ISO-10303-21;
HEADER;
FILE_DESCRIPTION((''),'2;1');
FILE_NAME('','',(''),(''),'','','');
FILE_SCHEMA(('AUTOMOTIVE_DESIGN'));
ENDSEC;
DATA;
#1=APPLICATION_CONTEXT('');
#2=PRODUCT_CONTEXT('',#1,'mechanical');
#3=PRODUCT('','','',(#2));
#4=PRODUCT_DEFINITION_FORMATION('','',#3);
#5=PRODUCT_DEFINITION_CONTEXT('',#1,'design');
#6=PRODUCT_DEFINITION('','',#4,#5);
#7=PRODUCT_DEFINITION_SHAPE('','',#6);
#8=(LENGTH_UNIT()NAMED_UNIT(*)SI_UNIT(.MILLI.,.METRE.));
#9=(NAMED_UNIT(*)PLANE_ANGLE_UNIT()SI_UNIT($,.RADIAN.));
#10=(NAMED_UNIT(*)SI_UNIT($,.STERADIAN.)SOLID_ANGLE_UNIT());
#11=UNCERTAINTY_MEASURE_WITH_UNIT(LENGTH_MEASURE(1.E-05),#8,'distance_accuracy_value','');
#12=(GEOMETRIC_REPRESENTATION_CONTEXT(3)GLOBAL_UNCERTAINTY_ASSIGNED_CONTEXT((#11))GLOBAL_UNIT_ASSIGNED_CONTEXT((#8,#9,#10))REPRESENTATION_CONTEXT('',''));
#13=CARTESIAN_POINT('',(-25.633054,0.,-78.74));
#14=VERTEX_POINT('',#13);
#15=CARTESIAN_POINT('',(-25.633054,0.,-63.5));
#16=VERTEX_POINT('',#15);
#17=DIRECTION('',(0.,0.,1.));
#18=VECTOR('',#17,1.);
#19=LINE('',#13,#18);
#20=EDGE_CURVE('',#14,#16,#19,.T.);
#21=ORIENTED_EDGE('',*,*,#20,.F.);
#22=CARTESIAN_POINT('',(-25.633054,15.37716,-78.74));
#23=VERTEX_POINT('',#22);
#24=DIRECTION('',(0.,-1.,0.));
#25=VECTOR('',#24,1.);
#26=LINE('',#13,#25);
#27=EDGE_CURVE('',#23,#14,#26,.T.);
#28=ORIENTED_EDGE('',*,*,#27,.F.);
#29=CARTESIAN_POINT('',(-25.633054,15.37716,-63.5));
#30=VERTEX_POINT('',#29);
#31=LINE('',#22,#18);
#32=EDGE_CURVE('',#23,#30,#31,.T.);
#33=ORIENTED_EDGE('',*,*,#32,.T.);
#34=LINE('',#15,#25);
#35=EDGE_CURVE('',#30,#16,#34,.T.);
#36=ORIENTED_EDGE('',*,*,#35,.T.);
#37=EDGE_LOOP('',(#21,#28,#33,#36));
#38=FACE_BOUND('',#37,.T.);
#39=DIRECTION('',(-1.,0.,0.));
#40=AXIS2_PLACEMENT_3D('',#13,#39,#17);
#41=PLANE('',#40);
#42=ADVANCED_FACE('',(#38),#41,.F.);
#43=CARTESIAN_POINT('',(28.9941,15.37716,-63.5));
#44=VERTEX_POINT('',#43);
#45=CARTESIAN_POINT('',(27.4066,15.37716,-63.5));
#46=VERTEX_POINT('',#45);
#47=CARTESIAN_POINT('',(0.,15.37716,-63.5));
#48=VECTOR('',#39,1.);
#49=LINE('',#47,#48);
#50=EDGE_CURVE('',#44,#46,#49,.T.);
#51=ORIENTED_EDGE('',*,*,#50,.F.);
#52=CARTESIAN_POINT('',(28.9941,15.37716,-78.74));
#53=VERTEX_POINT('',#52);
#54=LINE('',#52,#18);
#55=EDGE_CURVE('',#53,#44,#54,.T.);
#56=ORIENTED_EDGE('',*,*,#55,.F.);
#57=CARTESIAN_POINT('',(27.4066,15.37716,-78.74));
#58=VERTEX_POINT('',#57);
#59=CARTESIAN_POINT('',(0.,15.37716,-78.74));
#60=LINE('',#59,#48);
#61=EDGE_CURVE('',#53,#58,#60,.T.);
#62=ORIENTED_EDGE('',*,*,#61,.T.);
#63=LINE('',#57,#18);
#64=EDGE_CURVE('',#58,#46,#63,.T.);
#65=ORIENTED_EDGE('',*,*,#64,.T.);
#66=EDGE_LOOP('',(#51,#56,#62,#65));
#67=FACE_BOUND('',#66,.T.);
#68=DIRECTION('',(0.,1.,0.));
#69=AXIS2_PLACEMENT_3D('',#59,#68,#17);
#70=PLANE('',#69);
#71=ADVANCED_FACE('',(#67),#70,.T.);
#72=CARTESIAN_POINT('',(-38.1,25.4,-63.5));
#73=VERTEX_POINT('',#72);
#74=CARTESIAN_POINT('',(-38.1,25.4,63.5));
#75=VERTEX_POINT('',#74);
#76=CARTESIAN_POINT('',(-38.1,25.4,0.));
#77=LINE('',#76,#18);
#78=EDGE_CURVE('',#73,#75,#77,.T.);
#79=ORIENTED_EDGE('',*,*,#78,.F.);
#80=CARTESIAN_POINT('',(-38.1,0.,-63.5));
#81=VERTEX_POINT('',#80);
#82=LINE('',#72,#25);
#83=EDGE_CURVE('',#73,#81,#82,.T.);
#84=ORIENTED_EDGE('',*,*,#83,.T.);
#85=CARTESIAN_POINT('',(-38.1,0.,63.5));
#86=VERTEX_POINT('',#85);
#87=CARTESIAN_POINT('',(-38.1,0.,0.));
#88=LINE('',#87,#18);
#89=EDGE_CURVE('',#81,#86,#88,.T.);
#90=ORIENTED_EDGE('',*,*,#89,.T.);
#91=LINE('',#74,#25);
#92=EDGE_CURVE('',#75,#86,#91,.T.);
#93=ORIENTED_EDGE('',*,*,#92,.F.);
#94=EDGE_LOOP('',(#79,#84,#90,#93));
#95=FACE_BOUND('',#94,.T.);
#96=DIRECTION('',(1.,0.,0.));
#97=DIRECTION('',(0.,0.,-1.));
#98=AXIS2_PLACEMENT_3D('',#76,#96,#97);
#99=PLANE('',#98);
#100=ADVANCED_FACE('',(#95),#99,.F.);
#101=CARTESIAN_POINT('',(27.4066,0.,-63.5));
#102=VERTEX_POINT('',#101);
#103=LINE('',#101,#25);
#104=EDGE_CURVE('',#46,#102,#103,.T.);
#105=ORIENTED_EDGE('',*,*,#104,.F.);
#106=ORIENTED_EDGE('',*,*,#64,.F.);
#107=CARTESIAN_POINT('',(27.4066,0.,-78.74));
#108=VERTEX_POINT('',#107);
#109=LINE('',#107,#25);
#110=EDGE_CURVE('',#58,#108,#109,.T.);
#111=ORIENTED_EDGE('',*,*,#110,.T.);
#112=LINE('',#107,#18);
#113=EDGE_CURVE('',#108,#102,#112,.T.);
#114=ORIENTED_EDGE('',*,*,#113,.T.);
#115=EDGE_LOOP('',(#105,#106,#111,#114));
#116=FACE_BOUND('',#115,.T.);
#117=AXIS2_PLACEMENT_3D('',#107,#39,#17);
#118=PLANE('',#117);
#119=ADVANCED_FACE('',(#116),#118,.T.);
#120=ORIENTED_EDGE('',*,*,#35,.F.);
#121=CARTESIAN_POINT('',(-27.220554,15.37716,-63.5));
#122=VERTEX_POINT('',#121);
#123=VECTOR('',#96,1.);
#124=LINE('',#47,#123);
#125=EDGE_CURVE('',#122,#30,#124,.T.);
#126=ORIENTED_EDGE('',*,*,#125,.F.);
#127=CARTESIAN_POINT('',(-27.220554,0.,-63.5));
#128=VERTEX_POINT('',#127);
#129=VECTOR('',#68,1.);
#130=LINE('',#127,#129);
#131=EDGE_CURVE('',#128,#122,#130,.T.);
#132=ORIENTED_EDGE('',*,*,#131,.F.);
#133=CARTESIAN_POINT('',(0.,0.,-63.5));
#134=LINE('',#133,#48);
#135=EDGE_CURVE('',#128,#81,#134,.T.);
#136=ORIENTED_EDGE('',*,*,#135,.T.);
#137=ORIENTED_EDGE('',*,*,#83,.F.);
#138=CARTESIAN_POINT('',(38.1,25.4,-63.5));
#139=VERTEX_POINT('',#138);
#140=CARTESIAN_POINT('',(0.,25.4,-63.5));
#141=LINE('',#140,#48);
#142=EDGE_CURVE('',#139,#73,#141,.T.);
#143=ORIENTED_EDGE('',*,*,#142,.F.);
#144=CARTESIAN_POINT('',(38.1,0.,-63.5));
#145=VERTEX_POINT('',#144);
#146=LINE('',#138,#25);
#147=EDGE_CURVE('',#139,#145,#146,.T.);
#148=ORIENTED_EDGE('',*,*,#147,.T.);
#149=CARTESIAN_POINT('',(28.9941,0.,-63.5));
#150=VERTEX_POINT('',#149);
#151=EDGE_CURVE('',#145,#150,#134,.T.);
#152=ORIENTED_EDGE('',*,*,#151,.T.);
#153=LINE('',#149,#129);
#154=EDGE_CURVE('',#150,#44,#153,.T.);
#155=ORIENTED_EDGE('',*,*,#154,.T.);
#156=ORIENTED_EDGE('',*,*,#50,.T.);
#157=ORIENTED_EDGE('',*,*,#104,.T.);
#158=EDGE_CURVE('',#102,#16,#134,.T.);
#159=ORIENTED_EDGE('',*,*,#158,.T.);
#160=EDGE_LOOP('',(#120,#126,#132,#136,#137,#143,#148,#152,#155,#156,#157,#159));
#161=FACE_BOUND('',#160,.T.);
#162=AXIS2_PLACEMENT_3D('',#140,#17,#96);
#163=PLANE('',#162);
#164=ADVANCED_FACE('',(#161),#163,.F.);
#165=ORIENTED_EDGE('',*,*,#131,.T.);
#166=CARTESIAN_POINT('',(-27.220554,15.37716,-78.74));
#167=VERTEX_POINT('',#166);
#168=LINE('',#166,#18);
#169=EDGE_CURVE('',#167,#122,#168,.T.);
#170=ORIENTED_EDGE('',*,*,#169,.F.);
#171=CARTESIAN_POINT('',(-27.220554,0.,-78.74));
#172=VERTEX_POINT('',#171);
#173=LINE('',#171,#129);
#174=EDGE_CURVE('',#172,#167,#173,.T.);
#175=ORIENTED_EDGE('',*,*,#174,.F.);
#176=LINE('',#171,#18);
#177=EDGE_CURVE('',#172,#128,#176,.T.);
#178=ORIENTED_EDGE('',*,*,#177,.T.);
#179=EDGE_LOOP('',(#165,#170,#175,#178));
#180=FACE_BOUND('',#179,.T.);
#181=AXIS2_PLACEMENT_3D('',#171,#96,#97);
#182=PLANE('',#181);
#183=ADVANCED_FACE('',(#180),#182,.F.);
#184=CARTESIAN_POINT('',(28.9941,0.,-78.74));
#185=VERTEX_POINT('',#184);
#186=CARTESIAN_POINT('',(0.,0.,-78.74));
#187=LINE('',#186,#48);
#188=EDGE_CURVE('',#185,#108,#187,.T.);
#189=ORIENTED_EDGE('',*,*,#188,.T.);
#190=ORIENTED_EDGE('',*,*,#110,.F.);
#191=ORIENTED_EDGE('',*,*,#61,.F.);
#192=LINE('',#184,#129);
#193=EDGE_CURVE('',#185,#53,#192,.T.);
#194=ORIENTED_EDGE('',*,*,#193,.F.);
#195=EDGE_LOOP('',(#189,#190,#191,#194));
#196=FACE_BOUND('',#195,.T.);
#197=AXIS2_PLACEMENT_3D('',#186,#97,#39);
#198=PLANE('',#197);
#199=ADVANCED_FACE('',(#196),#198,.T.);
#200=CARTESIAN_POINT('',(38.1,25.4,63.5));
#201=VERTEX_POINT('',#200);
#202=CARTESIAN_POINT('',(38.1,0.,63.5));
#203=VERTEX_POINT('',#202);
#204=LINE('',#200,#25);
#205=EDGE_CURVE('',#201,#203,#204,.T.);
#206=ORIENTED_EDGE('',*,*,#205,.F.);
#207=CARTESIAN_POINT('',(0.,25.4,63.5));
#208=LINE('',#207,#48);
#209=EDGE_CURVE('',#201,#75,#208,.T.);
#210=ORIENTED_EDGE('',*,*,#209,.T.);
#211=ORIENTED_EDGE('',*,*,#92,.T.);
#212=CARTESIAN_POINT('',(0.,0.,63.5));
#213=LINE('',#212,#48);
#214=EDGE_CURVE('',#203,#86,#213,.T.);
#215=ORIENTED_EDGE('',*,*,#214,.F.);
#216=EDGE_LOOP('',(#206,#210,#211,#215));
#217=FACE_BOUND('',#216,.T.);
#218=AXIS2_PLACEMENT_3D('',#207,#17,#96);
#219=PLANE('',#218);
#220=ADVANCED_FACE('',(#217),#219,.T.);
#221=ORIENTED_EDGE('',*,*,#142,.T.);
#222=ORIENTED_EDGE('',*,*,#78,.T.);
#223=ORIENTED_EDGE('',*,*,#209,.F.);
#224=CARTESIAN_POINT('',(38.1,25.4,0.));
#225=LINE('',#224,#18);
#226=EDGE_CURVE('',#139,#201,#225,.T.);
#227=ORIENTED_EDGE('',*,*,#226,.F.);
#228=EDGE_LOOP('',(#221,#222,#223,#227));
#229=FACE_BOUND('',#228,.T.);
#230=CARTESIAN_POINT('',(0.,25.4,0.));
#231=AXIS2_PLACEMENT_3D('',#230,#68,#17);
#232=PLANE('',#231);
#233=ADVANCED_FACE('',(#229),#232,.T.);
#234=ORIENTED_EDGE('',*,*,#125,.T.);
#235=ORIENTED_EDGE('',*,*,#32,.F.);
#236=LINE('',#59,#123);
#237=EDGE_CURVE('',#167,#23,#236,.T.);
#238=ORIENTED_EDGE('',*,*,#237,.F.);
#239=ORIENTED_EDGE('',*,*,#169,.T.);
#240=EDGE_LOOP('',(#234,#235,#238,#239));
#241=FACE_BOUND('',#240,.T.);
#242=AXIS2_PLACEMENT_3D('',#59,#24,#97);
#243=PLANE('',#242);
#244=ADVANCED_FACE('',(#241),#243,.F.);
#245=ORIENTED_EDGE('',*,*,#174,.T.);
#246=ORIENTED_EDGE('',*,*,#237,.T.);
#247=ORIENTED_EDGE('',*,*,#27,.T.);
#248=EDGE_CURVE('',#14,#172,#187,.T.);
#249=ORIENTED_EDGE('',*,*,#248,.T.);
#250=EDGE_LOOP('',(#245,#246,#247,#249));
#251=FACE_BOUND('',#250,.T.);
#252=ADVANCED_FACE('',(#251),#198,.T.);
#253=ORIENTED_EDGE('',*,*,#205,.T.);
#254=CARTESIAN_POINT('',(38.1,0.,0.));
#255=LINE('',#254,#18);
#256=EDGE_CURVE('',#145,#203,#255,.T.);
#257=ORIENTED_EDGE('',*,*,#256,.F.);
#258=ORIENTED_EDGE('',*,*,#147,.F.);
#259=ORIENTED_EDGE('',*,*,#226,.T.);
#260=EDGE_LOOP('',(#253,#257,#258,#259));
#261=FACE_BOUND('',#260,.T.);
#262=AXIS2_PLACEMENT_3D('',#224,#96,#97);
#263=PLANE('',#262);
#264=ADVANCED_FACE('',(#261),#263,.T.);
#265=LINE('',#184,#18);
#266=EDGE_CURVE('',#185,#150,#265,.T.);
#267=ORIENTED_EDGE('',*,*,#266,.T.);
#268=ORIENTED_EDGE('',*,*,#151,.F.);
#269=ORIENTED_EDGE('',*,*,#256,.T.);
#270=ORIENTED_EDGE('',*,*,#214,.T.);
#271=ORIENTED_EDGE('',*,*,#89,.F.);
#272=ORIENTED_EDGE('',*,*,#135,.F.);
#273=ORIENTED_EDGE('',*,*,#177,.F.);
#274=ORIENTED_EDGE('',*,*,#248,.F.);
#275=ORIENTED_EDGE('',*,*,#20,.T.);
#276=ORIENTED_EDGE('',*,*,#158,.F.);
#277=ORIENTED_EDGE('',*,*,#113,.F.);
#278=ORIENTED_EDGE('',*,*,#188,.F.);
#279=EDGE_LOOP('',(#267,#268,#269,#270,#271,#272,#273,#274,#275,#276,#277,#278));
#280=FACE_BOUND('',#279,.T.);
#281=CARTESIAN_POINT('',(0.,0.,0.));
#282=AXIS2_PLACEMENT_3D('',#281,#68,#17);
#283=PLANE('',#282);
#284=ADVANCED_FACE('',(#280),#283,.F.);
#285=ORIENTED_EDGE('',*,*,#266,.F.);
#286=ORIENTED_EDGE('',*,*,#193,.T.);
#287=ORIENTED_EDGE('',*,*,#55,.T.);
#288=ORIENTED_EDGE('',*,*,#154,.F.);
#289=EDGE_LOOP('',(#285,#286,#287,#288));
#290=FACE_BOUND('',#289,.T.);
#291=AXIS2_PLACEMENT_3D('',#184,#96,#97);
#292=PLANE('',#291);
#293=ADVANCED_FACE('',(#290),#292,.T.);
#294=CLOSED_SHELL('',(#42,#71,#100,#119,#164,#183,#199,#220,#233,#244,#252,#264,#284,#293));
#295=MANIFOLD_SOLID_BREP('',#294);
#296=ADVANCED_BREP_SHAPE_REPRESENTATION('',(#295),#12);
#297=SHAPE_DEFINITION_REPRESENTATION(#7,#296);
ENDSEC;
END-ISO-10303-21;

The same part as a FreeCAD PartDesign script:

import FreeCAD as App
import Part
import Sketcher

V = App.Vector
Q = App.Units.Quantity

doc = App.newDocument("Part")
body = doc.addObject("PartDesign::Body", "Body")

# Sketch on XZ plane
sketch1 = doc.addObject("Sketcher::SketchObject", "Sketch")
body.addObject(sketch1)
sketch1.AttachmentSupport = (doc.XZ_Plane, [""])
sketch1.MapMode = "FlatFace"
sketch1.addGeometry([
    Part.LineSegment(V(38, -64, 0), V(-38, -64, 0)),
    Part.LineSegment(V(-38, -64, 0), V(-38, 64, 0)),
    Part.LineSegment(V(-38, 64, 0), V(38, 64, 0)),
    Part.LineSegment(V(38, 64, 0), V(38, -64, 0)),
], False)
sketch1.addConstraint([
    Sketcher.Constraint("Coincident", 0, 2, 1, 1),
    Sketcher.Constraint("Coincident", 1, 2, 2, 1),
    Sketcher.Constraint("Coincident", 2, 2, 3, 1),
    Sketcher.Constraint("Coincident", 3, 2, 0, 1),
    Sketcher.Constraint("Horizontal", 0),
    Sketcher.Constraint("Vertical", 1),
    Sketcher.Constraint("Horizontal", 2),
    Sketcher.Constraint("Vertical", 3),
    Sketcher.Constraint("Symmetric", 0, 2, 2, 2, -1, 1),
    Sketcher.Constraint("DistanceX", 0, 2, 0, 1, Q("3 in")),
    Sketcher.Constraint("DistanceY", 1, 1, 1, 2, Q("5 in")),
])
pad1 = doc.addObject("PartDesign::Pad", "Pad")
body.addObject(pad1)
pad1.Profile = sketch1
pad1.Length = Q("1 in")
pad1.Reversed = True

# Sketch on XY plane
sketch2 = doc.addObject("Sketcher::SketchObject", "Sketch001")
body.addObject(sketch2)
sketch2.AttachmentSupport = (doc.XY_Plane, [""])
sketch2.MapMode = "FlatFace"
sketch2.AttachmentOffset = App.Placement(V(0, 0, -2.5 * 25.4), App.Rotation())
sketch2.addGeometry([
    Part.LineSegment(V(29, 15.4, 0), V(29, 0, 0)),  # 0
    Part.LineSegment(V(29, 0, 0), V(27.4, 0, 0)),  # 1
    Part.LineSegment(V(27.4, 0, 0), V(27.4, 15.4, 0)),  # 2
    Part.LineSegment(V(27.4, 15.4, 0), V(29, 15.4, 0)),  # 3
    Part.LineSegment(V(-25.6, 15.4, 0), V(-25.6, 0, 0)),  # 4
    Part.LineSegment(V(-25.6, 0, 0), V(-27.2, 0, 0)),  # 5
    Part.LineSegment(V(-27.2, 0, 0), V(-27.2, 15.4, 0)),  # 6
    Part.LineSegment(V(-27.2, 15.4, 0), V(-25.6, 15.4, 0)),  # 7
], False)
sketch2.addConstraint([
    Sketcher.Constraint("Coincident", 0, 2, 1, 1),
    Sketcher.Constraint("Coincident", 1, 2, 2, 1),
    Sketcher.Constraint("Coincident", 2, 2, 3, 1),
    Sketcher.Constraint("Coincident", 3, 2, 0, 1),
    Sketcher.Constraint("Coincident", 4, 2, 5, 1),
    Sketcher.Constraint("Coincident", 5, 2, 6, 1),
    Sketcher.Constraint("Coincident", 6, 2, 7, 1),
    Sketcher.Constraint("Coincident", 7, 2, 4, 1),
    Sketcher.Constraint("Vertical", 0),
    Sketcher.Constraint("Horizontal", 1),
    Sketcher.Constraint("Vertical", 2),
    Sketcher.Constraint("Horizontal", 3),
    Sketcher.Constraint("Vertical", 4),
    Sketcher.Constraint("Horizontal", 5),
    Sketcher.Constraint("Vertical", 6),
    Sketcher.Constraint("Horizontal", 7),
    Sketcher.Constraint("PointOnObject", 0, 2, -1),
    Sketcher.Constraint("PointOnObject", 4, 2, -1),
    Sketcher.Constraint("Horizontal", 3, 2, 6, 2),
    Sketcher.Constraint("Equal", 3, 5),
    Sketcher.Constraint("DistanceX", 1, 2, 1, 1, Q("0.0625 in")),
    Sketcher.Constraint("DistanceY", 0, 2, 0, 1, Q("0.6054 in")),
    Sketcher.Constraint("DistanceX", -1, 1, 1, 2, Q("1.079 in")),
    Sketcher.Constraint("DistanceX", 4, 2, -1, 1, Q("25.633054 mm")),
])
pad2 = doc.addObject("PartDesign::Pad", "Pad001")
body.addObject(pad2)
pad2.Profile = sketch2
pad2.Length = Q("0.6 in")
pad2.Reversed = True

doc.recompute()
